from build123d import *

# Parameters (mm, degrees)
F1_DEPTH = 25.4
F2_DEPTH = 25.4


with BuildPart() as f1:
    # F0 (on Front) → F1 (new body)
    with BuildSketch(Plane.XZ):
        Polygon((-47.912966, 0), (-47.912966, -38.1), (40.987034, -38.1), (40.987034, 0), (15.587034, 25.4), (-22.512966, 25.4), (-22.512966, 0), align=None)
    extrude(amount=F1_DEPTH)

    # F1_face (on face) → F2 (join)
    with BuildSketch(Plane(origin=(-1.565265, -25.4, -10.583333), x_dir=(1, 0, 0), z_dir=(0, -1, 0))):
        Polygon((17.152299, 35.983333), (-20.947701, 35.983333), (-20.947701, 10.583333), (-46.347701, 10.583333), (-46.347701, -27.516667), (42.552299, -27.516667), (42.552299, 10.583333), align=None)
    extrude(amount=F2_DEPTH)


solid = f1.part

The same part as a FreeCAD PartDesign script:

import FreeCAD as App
import Part
import Sketcher
Q = App.Units.Quantity

doc = App.newDocument("Part")
body = doc.addObject("PartDesign::Body", "Body")

# Sketch on XZ plane
sketch1 = body.newObject("Sketcher::SketchObject", "Sketch")
sketch1.AttachmentSupport = (doc.getObject("XZ_Plane"), [""])
sketch1.MapMode = "FlatFace"
sketch1.addGeometry(Part.LineSegment(App.Vector(-47.912966, 0, 0), App.Vector(-47.912966, -38.1, 0)), False)
sketch1.addGeometry(Part.LineSegment(App.Vector(-47.912966, -38.1, 0), App.Vector(40.987034, -38.1, 0)), False)
sketch1.addGeometry(Part.LineSegment(App.Vector(40.987034, -38.1, 0), App.Vector(40.987034, 0, 0)), False)
sketch1.addGeometry(Part.LineSegment(App.Vector(40.987034, 0, 0), App.Vector(15.587034, 25.4, 0)), False)
sketch1.addGeometry(Part.LineSegment(App.Vector(15.587034, 25.4, 0), App.Vector(-22.512966, 25.4, 0)), False)
sketch1.addGeometry(Part.LineSegment(App.Vector(-22.512966, 25.4, 0), App.Vector(-22.512966, 0, 0)), False)
sketch1.addGeometry(Part.LineSegment(App.Vector(-22.512966, 0, 0), App.Vector(-47.912966, 0, 0)), False)
sketch1.addConstraint(Sketcher.Constraint("Coincident", 0, 2, 1, 1))
sketch1.addConstraint(Sketcher.Constraint("Coincident", 1, 2, 2, 1))
sketch1.addConstraint(Sketcher.Constraint("Coincident", 2, 2, 3, 1))
sketch1.addConstraint(Sketcher.Constraint("Coincident", 3, 2, 4, 1))
sketch1.addConstraint(Sketcher.Constraint("Coincident", 4, 2, 5, 1))
sketch1.addConstraint(Sketcher.Constraint("Coincident", 5, 2, 6, 1))
sketch1.addConstraint(Sketcher.Constraint("Coincident", 6, 2, 0, 1))
sketch1.addConstraint(Sketcher.Constraint("Vertical", 0))
sketch1.addConstraint(Sketcher.Constraint("Horizontal", 1))
sketch1.addConstraint(Sketcher.Constraint("Vertical", 2))
sketch1.addConstraint(Sketcher.Constraint("Horizontal", 4))
sketch1.addConstraint(Sketcher.Constraint("Vertical", 5))
sketch1.addConstraint(Sketcher.Constraint("Horizontal", 6))
sketch1.addConstraint(Sketcher.Constraint("PointOnObject", 2, 2, -1))
sketch1.addConstraint(Sketcher.Constraint("PointOnObject", 5, 2, -1))
sketch1.addConstraint(Sketcher.Constraint("Equal", 4, 0))
sketch1.addConstraint(Sketcher.Constraint("Equal", 6, 5))
sketch1.addConstraint(Sketcher.Constraint("DistanceX", 6, 2, 6, 1, Q("1 in")))
sketch1.addConstraint(Sketcher.Constraint("DistanceX", 1, 1, 1, 2, Q("3.5 in")))
sketch1.addConstraint(Sketcher.Constraint("DistanceX", 4, 2, 4, 1, Q("1.5 in")))
sketch1.addConstraint(Sketcher.Constraint("DistanceX", 0, 2, -1, 1, Q("47.912966 mm")))
pad1 = body.newObject("PartDesign::Pad", "Pad")
pad1.Profile = sketch1
pad1.Length = Q("1 in")

# Sketch on XZ plane
sketch2 = body.newObject("Sketcher::SketchObject", "Sketch001")
sketch2.AttachmentSupport = (doc.getObject("XZ_Plane"), [""])
sketch2.MapMode = "FlatFace"
sketch2.AttachmentOffset = App.Placement(App.Vector(0, 0, 1 * 25.4), App.Rotation())
sketch2.addGeometry(Part.LineSegment(App.Vector(15.587034, 25.4, 0), App.Vector(-22.512966, 25.4, 0)), False)
sketch2.addGeometry(Part.LineSegment(App.Vector(-22.512966, 25.4, 0), App.Vector(-22.512966, 0, 0)), False)
sketch2.addGeometry(Part.LineSegment(App.Vector(-22.512966, 0, 0), App.Vector(-47.912966, 0, 0)), False)
sketch2.addGeometry(Part.LineSegment(App.Vector(-47.912966, 0, 0), App.Vector(-47.912966, -38.1, 0)), False)
sketch2.addGeometry(Part.LineSegment(App.Vector(-47.912966, -38.1, 0), App.Vector(40.987034, -38.1, 0)), False)
sketch2.addGeometry(Part.LineSegment(App.Vector(40.987034, -38.1, 0), App.Vector(40.987034, 0, 0)), False)
sketch2.addGeometry(Part.LineSegment(App.Vector(40.987034, 0, 0), App.Vector(15.587034, 25.4, 0)), False)
sketch2.addConstraint(Sketcher.Constraint("Coincident", 0, 2, 1, 1))
sketch2.addConstraint(Sketcher.Constraint("Coincident", 1, 2, 2, 1))
sketch2.addConstraint(Sketcher.Constraint("Coincident", 2, 2, 3, 1))
sketch2.addConstraint(Sketcher.Constraint("Coincident", 3, 2, 4, 1))
sketch2.addConstraint(Sketcher.Constraint("Coincident", 4, 2, 5, 1))
sketch2.addConstraint(Sketcher.Constraint("Coincident", 5, 2, 6, 1))
sketch2.addConstraint(Sketcher.Constraint("Coincident", 6, 2, 0, 1))
sketch2.addConstraint(Sketcher.Constraint("Horizontal", 0))
sketch2.addConstraint(Sketcher.Constraint("Vertical", 1))
sketch2.addConstraint(Sketcher.Constraint("Horizontal", 2))
sketch2.addConstraint(Sketcher.Constraint("Vertical", 3))
sketch2.addConstraint(Sketcher.Constraint("Horizontal", 4))
sketch2.addConstraint(Sketcher.Constraint("Vertical", 5))
sketch2.addConstraint(Sketcher.Constraint("PointOnObject", 1, 2, -1))
sketch2.addConstraint(Sketcher.Constraint("PointOnObject", 5, 2, -1))
sketch2.addConstraint(Sketcher.Constraint("Equal", 2, 1))
sketch2.addConstraint(Sketcher.Constraint("Equal", 0, 3))
sketch2.addConstraint(Sketcher.Constraint("DistanceX", 2, 2, 2, 1, Q("1 in")))
sketch2.addConstraint(Sketcher.Constraint("DistanceX", 0, 2, 0, 1, Q("1.5 in")))
sketch2.addConstraint(Sketcher.Constraint("DistanceX", 4, 1, 4, 2, Q("3.5 in")))
sketch2.addConstraint(Sketcher.Constraint("DistanceX", 0, 2, -1, 1, Q("22.512966 mm")))
pad2 = body.newObject("PartDesign::Pad", "Pad001")
pad2.Profile = sketch2
pad2.Length = Q("1 in")

doc.recompute()
